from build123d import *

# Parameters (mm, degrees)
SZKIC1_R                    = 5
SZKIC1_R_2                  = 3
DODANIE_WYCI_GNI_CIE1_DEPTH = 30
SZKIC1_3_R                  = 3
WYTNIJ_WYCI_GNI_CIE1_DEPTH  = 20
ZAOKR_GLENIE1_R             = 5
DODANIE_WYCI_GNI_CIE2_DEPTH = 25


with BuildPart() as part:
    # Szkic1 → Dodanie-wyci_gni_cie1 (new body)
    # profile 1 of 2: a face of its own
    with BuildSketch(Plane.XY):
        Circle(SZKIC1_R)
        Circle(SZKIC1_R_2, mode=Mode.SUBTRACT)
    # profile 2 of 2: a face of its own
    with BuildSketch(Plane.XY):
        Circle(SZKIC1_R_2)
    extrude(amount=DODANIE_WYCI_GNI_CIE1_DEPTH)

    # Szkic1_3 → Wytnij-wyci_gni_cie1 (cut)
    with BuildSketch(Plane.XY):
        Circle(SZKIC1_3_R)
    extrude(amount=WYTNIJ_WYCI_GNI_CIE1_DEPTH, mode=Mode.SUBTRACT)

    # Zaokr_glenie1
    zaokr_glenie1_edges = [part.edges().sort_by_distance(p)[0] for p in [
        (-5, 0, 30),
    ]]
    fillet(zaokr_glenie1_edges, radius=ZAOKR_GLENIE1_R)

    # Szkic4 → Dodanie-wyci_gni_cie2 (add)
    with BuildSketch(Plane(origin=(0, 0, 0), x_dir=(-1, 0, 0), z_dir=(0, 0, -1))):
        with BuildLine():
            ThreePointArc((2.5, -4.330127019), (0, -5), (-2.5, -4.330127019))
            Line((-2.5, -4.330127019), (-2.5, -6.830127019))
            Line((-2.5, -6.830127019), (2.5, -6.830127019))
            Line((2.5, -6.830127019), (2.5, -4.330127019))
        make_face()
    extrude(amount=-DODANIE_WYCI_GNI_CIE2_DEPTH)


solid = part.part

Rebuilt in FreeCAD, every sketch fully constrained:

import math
import FreeCAD as App
import Part
import Sketcher
Q = App.Units.Quantity


def edges_at(feature, points):
    """Names of the edges that pass closest to the given points."""
    edges = feature.Shape.Edges
    near = lambda p: min(range(len(edges)), key=lambda i: edges[i].distToShape(Part.Vertex(*p))[0])
    return sorted({f"Edge{near(p) + 1}" for p in points})

doc = App.newDocument("Part")
body = doc.addObject("PartDesign::Body", "Body")

sketch1 = doc.addObject("Sketcher::SketchObject", "Sketch")
body.addObject(sketch1)
sketch1.AttachmentSupport = (doc.XY_Plane, [""])
sketch1.MapMode = "FlatFace"
sketch1.addGeometry(Part.Circle(App.Vector(0, 0, 0), App.Vector(0, 0, 1), 5), False)
sketch1.addConstraint([
    Sketcher.Constraint("Coincident", 0, 3, -1, 1),
    Sketcher.Constraint("Diameter", 0, Q("10 mm")),
])
pad1 = doc.addObject("PartDesign::Pad", "Pad")
body.addObject(pad1)
pad1.Profile = sketch1
pad1.Length = 30

sketch2 = doc.addObject("Sketcher::SketchObject", "Sketch001")
body.addObject(sketch2)
sketch2.AttachmentSupport = (doc.XY_Plane, [""])
sketch2.MapMode = "FlatFace"
sketch2.addGeometry(Part.Circle(App.Vector(0, 0, 0), App.Vector(0, 0, 1), 3), False)
sketch2.addConstraint([
    Sketcher.Constraint("Coincident", 0, 3, -1, 1),
    Sketcher.Constraint("Diameter", 0, Q("6 mm")),
])
pocket1 = doc.addObject("PartDesign::Pocket", "Pocket")
body.addObject(pocket1)
pocket1.Profile = sketch2
pocket1.Length = 20
pocket1.Reversed = True
doc.recompute()

fillet = doc.addObject("PartDesign::Fillet", "Fillet")
body.addObject(fillet)
fillet.Base = (pocket1, edges_at(pocket1, [(-5, 0, 30)]))
fillet.Radius = 5

sketch3 = doc.addObject("Sketcher::SketchObject", "Sketch002")
body.addObject(sketch3)
sketch3.AttachmentSupport = (doc.XY_Plane, [""])
sketch3.MapMode = "FlatFace"
sketch3.addGeometry([
    Part.ArcOfCircle(Part.Circle(App.Vector(0, 0, 0), App.Vector(0, 0, 1), 5), math.radians(-120), math.radians(-60)),
    Part.LineSegment(App.Vector(2.5, -4.3, 0), App.Vector(2.5, -6.8, 0)),
    Part.LineSegment(App.Vector(2.5, -6.8, 0), App.Vector(-2.5, -6.8, 0)),
    Part.LineSegment(App.Vector(-2.5, -6.8, 0), App.Vector(-2.5, -4.3, 0)),
], False)
sketch3.addConstraint([
    Sketcher.Constraint("Coincident", 0, 2, 1, 1),
    Sketcher.Constraint("Coincident", 1, 2, 2, 1),
    Sketcher.Constraint("Coincident", 2, 2, 3, 1),
    Sketcher.Constraint("Coincident", 3, 2, 0, 1),
    Sketcher.Constraint("Vertical", 1),
    Sketcher.Constraint("Horizontal", 2),
    Sketcher.Constraint("Vertical", 3),
    Sketcher.Constraint("Coincident", 0, 3, -1, 1),
    Sketcher.Constraint("Horizontal", 0, 2, 3, 2),
    Sketcher.Constraint("Radius", 0, Q("5 mm")),
    Sketcher.Constraint("DistanceX", 2, 2, 2, 1, Q("5 mm")),
    Sketcher.Constraint("DistanceY", 1, 2, 1, 1, Q("2.5 mm")),
])
pad2 = doc.addObject("PartDesign::Pad", "Pad001")
body.addObject(pad2)
pad2.Profile = sketch3
pad2.Length = 25

doc.recompute()
